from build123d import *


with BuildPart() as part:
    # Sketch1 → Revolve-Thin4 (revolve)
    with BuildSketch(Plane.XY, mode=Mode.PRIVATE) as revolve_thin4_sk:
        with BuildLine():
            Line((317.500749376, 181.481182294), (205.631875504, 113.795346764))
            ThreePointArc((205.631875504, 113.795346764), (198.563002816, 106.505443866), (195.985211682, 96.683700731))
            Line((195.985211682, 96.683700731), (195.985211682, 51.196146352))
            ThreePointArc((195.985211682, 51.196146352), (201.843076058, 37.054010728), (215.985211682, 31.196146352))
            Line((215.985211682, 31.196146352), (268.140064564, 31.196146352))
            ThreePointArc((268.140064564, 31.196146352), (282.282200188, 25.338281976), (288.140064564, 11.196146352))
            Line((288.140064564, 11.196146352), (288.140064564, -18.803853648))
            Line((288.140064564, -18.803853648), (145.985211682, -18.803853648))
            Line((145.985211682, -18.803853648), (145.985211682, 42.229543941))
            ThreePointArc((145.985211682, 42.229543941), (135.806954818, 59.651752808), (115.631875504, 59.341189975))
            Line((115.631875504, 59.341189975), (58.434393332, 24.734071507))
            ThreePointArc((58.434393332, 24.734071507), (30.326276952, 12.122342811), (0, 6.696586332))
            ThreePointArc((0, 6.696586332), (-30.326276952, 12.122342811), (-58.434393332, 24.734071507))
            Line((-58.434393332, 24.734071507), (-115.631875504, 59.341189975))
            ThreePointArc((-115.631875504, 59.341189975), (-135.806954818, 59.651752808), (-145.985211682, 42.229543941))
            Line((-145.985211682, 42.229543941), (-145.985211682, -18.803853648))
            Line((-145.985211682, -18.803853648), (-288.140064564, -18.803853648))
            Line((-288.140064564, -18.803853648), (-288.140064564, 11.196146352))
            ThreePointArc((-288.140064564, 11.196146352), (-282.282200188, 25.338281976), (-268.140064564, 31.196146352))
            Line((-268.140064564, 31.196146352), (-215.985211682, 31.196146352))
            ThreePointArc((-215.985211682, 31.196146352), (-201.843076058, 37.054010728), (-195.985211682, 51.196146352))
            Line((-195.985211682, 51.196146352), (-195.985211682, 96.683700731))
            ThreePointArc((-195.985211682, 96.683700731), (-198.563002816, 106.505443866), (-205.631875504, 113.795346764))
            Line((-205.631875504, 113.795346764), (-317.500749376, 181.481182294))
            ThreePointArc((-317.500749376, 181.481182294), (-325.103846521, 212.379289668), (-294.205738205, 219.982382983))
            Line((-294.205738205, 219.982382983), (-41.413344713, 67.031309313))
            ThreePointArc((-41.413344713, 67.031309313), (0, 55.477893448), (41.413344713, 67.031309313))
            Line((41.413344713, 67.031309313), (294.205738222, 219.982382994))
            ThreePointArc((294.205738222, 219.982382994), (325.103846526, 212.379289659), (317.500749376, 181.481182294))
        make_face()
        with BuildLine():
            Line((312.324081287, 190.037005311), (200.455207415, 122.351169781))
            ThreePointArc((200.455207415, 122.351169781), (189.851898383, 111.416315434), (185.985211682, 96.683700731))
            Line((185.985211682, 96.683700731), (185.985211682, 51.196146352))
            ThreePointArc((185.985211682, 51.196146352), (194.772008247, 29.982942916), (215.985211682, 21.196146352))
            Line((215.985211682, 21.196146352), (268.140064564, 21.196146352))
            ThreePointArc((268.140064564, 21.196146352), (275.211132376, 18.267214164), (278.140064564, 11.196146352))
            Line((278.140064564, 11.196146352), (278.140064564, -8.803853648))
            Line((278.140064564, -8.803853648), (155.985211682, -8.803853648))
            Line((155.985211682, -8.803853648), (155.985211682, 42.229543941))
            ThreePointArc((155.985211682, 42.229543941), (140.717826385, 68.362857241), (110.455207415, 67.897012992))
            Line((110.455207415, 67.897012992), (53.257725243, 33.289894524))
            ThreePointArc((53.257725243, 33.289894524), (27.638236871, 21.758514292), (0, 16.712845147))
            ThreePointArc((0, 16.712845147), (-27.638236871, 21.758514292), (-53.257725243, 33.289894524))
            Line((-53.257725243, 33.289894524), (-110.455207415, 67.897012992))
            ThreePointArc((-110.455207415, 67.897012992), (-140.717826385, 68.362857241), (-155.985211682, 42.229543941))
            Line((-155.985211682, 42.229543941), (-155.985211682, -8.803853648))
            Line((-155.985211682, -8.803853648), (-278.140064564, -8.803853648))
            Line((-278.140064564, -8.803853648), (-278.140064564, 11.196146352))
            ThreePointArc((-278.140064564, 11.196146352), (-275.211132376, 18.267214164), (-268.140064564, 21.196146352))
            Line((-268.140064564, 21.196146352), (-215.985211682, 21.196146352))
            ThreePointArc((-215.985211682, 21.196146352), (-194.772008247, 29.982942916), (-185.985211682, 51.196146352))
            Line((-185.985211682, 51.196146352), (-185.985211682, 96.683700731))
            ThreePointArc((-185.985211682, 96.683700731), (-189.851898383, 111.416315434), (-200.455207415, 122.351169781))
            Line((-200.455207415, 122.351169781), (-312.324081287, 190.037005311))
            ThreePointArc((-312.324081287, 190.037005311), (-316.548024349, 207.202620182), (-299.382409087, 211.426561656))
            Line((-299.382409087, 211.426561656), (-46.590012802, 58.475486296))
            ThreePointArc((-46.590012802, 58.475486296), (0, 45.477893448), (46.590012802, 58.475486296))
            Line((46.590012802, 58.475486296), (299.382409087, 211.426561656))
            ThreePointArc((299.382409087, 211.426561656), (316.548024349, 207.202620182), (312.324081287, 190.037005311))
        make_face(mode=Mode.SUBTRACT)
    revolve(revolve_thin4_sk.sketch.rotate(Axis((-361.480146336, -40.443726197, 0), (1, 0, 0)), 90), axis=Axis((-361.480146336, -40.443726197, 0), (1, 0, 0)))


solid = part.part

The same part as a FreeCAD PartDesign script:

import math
import FreeCAD as App
import Part
import Sketcher

V = App.Vector

doc = App.newDocument("Part")
body = doc.addObject("PartDesign::Body", "Body")

sketch1 = body.newObject("Sketcher::SketchObject", "Sketch")
sketch1.AttachmentSupport = (doc.getObject("XY_Plane"), [""])
sketch1.MapMode = "FlatFace"
sketch1.addGeometry([
    Part.LineSegment(V(205.631876, 113.795347, 0), V(317.500749, 181.481182, 0)),
    Part.ArcOfCircle(Part.Circle(V(305.853246, 200.731784, 0), V(0, 0, 1), 22.5), math.radians(-58.824125), math.radians(121.17589)),
    Part.LineSegment(V(294.205738, 219.982383, 0), V(41.413345, 67.031309, 0)),
    Part.ArcOfCircle(Part.Circle(V(0, 135.477893, 0), V(0, 0, 1), 80), math.radians(-121.175875), math.radians(-58.824125)),
    Part.LineSegment(V(-41.413345, 67.031309, 0), V(-294.205738, 219.982383, 0)),
    Part.ArcOfCircle(Part.Circle(V(-305.853246, 200.731784, 0), V(0, 0, 1), 22.5), math.radians(58.82411), math.radians(238.824125)),
    Part.LineSegment(V(-317.500749, 181.481182, 0), V(-205.631876, 113.795347, 0)),
    Part.ArcOfCircle(Part.Circle(V(-215.985212, 96.683701, 0), V(0, 0, 1), 20), math.radians(0), math.radians(58.824125)),
    Part.LineSegment(V(-195.985212, 96.683701, 0), V(-195.985212, 51.196146, 0)),
    Part.ArcOfCircle(Part.Circle(V(-215.985212, 51.196146, 0), V(0, 0, 1), 20), math.radians(-90), math.radians(0)),
    Part.LineSegment(V(-215.985212, 31.196146, 0), V(-268.140065, 31.196146, 0)),
    Part.ArcOfCircle(Part.Circle(V(-268.140065, 11.196146, 0), V(0, 0, 1), 20), math.radians(90), math.radians(180)),
    Part.LineSegment(V(-288.140065, 11.196146, 0), V(-288.140065, -18.803854, 0)),
    Part.LineSegment(V(-288.140065, -18.803854, 0), V(-145.985212, -18.803854, 0)),
    Part.LineSegment(V(-145.985212, -18.803854, 0), V(-145.985212, 42.229544, 0)),
    Part.ArcOfCircle(Part.Circle(V(-125.985212, 42.229544, 0), V(0, 0, 1), 20), math.radians(58.824125), math.radians(180)),
    Part.LineSegment(V(-115.631876, 59.34119, 0), V(-58.434393, 24.734072, 0)),
    Part.ArcOfCircle(Part.Circle(V(6.897258, 132.712028, 0), V(0, 0, 1), 126.204056), math.radians(-121.175875), math.radians(-93.132869)),
    Part.ArcOfCircle(Part.Circle(V(-6.897258, 132.712028, 0), V(0, 0, 1), 126.204056), math.radians(-86.867131), math.radians(-58.824125)),
    Part.LineSegment(V(58.434393, 24.734072, 0), V(115.631876, 59.34119, 0)),
    Part.ArcOfCircle(Part.Circle(V(125.985212, 42.229544, 0), V(0, 0, 1), 20), math.radians(0), math.radians(121.175875)),
    Part.LineSegment(V(145.985212, 42.229544, 0), V(145.985212, -18.803854, 0)),
    Part.LineSegment(V(145.985212, -18.803854, 0), V(288.140065, -18.803854, 0)),
    Part.LineSegment(V(288.140065, -18.803854, 0), V(288.140065, 11.196146, 0)),
    Part.ArcOfCircle(Part.Circle(V(268.140065, 11.196146, 0), V(0, 0, 1), 20), math.radians(0), math.radians(90)),
    Part.LineSegment(V(268.140065, 31.196146, 0), V(215.985212, 31.196146, 0)),
    Part.ArcOfCircle(Part.Circle(V(215.985212, 51.196146, 0), V(0, 0, 1), 20), math.radians(180), math.radians(270)),
    Part.LineSegment(V(195.985212, 51.196146, 0), V(195.985212, 96.683701, 0)),
    Part.ArcOfCircle(Part.Circle(V(215.985212, 96.683701, 0), V(0, 0, 1), 20), math.radians(121.175875), math.radians(180)),
    Part.LineSegment(V(312.324081, 190.037005, 0), V(200.455207, 122.35117, 0)),
    Part.ArcOfCircle(Part.Circle(V(215.985212, 96.683701, 0), V(0, 0, 1), 30), math.radians(121.175875), math.radians(180)),
    Part.LineSegment(V(185.985212, 96.683701, 0), V(185.985212, 51.196146, 0)),
    Part.ArcOfCircle(Part.Circle(V(215.985212, 51.196146, 0), V(0, 0, 1), 30), math.radians(180), math.radians(270)),
    Part.LineSegment(V(215.985212, 21.196146, 0), V(268.140065, 21.196146, 0)),
    Part.ArcOfCircle(Part.Circle(V(268.140065, 11.196146, 0), V(0, 0, 1), 10), math.radians(0), math.radians(90)),
    Part.LineSegment(V(278.140065, 11.196146, 0), V(278.140065, -8.803854, 0)),
    Part.LineSegment(V(278.140065, -8.803854, 0), V(155.985212, -8.803854, 0)),
    Part.LineSegment(V(155.985212, -8.803854, 0), V(155.985212, 42.229544, 0)),
    Part.ArcOfCircle(Part.Circle(V(125.985212, 42.229544, 0), V(0, 0, 1), 30), math.radians(0), math.radians(121.175875)),
    Part.LineSegment(V(110.455207, 67.897013, 0), V(53.257725, 33.289895, 0)),
    Part.ArcOfCircle(Part.Circle(V(-6.897258, 132.712028, 0), V(0, 0, 1), 116.204056), math.radians(-86.597226), math.radians(-58.824125)),
    Part.ArcOfCircle(Part.Circle(V(6.897258, 132.712028, 0), V(0, 0, 1), 116.204056), math.radians(-121.175875), math.radians(-93.402774)),
    Part.LineSegment(V(-53.257725, 33.289895, 0), V(-110.455207, 67.897013, 0)),
    Part.ArcOfCircle(Part.Circle(V(-125.985212, 42.229544, 0), V(0, 0, 1), 30), math.radians(58.824125), math.radians(180)),
    Part.LineSegment(V(-155.985212, 42.229544, 0), V(-155.985212, -8.803854, 0)),
    Part.LineSegment(V(-155.985212, -8.803854, 0), V(-278.140065, -8.803854, 0)),
    Part.LineSegment(V(-278.140065, -8.803854, 0), V(-278.140065, 11.196146, 0)),
    Part.ArcOfCircle(Part.Circle(V(-268.140065, 11.196146, 0), V(0, 0, 1), 10), math.radians(90), math.radians(180)),
    Part.LineSegment(V(-268.140065, 21.196146, 0), V(-215.985212, 21.196146, 0)),
    Part.ArcOfCircle(Part.Circle(V(-215.985212, 51.196146, 0), V(0, 0, 1), 30), math.radians(-90), math.radians(0)),
    Part.LineSegment(V(-185.985212, 51.196146, 0), V(-185.985212, 96.683701, 0)),
    Part.ArcOfCircle(Part.Circle(V(-215.985212, 96.683701, 0), V(0, 0, 1), 30), math.radians(0), math.radians(58.824125)),
    Part.LineSegment(V(-200.455207, 122.35117, 0), V(-312.324081, 190.037005, 0)),
    Part.ArcOfCircle(Part.Circle(V(-305.853246, 200.731784, 0), V(0, 0, 1), 12.5), math.radians(58.824114), math.radians(238.824125)),
    Part.LineSegment(V(-299.382409, 211.426562, 0), V(-46.590013, 58.475486, 0)),
    Part.ArcOfCircle(Part.Circle(V(0, 135.477893, 0), V(0, 0, 1), 90), math.radians(-121.175875), math.radians(-58.824125)),
    Part.LineSegment(V(46.590013, 58.475486, 0), V(299.382409, 211.426562, 0)),
    Part.ArcOfCircle(Part.Circle(V(305.853246, 200.731784, 0), V(0, 0, 1), 12.5), math.radians(-58.824125), math.radians(121.175886)),
], False)
sketch1.addGeometry(Part.LineSegment(V(-317.500749, -40.443726, 0), V(317.500749, -40.443726, 0)), True)
sketch1.addConstraint([
    Sketcher.Constraint("Tangent", 0, 2, 1, 1),
    Sketcher.Constraint("Tangent", 1, 2, 2, 1),
    Sketcher.Constraint("Tangent", 2, 2, 3, 2),
    Sketcher.Constraint("Tangent", 3, 1, 4, 1),
    Sketcher.Constraint("Tangent", 4, 2, 5, 1),
    Sketcher.Constraint("Tangent", 5, 2, 6, 1),
    Sketcher.Constraint("Tangent", 6, 2, 7, 2),
    Sketcher.Constraint("Tangent", 7, 1, 8, 1),
    Sketcher.Constraint("Tangent", 8, 2, 9, 2),
    Sketcher.Constraint("Tangent", 9, 1, 10, 1),
    Sketcher.Constraint("Tangent", 10, 2, 11, 1),
    Sketcher.Constraint("Tangent", 11, 2, 12, 1),
    Sketcher.Constraint("Coincident", 12, 2, 13, 1),
    Sketcher.Constraint("Coincident", 13, 2, 14, 1),
    Sketcher.Constraint("Tangent", 14, 2, 15, 2),
    Sketcher.Constraint("Tangent", 15, 1, 16, 1),
    Sketcher.Constraint("Tangent", 16, 2, 17, 1),
    Sketcher.Constraint("Coincident", 17, 2, 18, 1),
    Sketcher.Constraint("Tangent", 18, 2, 19, 1),
    Sketcher.Constraint("Tangent", 19, 2, 20, 2),
    Sketcher.Constraint("Tangent", 20, 1, 21, 1),
    Sketcher.Constraint("Coincident", 21, 2, 22, 1),
    Sketcher.Constraint("Coincident", 22, 2, 23, 1),
    Sketcher.Constraint("Tangent", 23, 2, 24, 1),
    Sketcher.Constraint("Tangent", 24, 2, 25, 1),
    Sketcher.Constraint("Tangent", 25, 2, 26, 2),
    Sketcher.Constraint("Tangent", 26, 1, 27, 1),
    Sketcher.Constraint("Tangent", 27, 2, 28, 2),
    Sketcher.Constraint("Tangent", 28, 1, 0, 1),
    Sketcher.Constraint("Tangent", 29, 2, 30, 1),
    Sketcher.Constraint("Tangent", 30, 2, 31, 1),
    Sketcher.Constraint("Tangent", 31, 2, 32, 1),
    Sketcher.Constraint("Tangent", 32, 2, 33, 1),
    Sketcher.Constraint("Tangent", 33, 2, 34, 2),
    Sketcher.Constraint("Tangent", 34, 1, 35, 1),
    Sketcher.Constraint("Coincident", 35, 2, 36, 1),
    Sketcher.Constraint("Coincident", 36, 2, 37, 1),
    Sketcher.Constraint("Tangent", 37, 2, 38, 1),
    Sketcher.Constraint("Tangent", 38, 2, 39, 1),
    Sketcher.Constraint("Tangent", 39, 2, 40, 2),
    Sketcher.Constraint("Coincident", 40, 1, 41, 2),
    Sketcher.Constraint("Tangent", 41, 1, 42, 1),
    Sketcher.Constraint("Tangent", 42, 2, 43, 1),
    Sketcher.Constraint("Tangent", 43, 2, 44, 1),
    Sketcher.Constraint("Coincident", 44, 2, 45, 1),
    Sketcher.Constraint("Coincident", 45, 2, 46, 1),
    Sketcher.Constraint("Tangent", 46, 2, 47, 2),
    Sketcher.Constraint("Tangent", 47, 1, 48, 1),
    Sketcher.Constraint("Tangent", 48, 2, 49, 1),
    Sketcher.Constraint("Tangent", 49, 2, 50, 1),
    Sketcher.Constraint("Tangent", 50, 2, 51, 1),
    Sketcher.Constraint("Tangent", 51, 2, 52, 1),
    Sketcher.Constraint("Tangent", 52, 2, 53, 2),
    Sketcher.Constraint("Tangent", 53, 1, 54, 1),
    Sketcher.Constraint("Tangent", 54, 2, 55, 1),
    Sketcher.Constraint("Tangent", 55, 2, 56, 1),
    Sketcher.Constraint("Tangent", 56, 2, 57, 2),
    Sketcher.Constraint("Tangent", 57, 1, 29, 1),
    Sketcher.Constraint("Vertical", 8),
    Sketcher.Constraint("Horizontal", 10),
    Sketcher.Constraint("Vertical", 12),
    Sketcher.Constraint("Horizontal", 13),
    Sketcher.Constraint("Vertical", 14),
    Sketcher.Constraint("Vertical", 21),
    Sketcher.Constraint("Horizontal", 22),
    Sketcher.Constraint("Vertical", 23),
    Sketcher.Constraint("Horizontal", 25),
    Sketcher.Constraint("Vertical", 27),
    Sketcher.Constraint("Vertical", 31),
    Sketcher.Constraint("Horizontal", 33),
    Sketcher.Constraint("Vertical", 35),
    Sketcher.Constraint("Horizontal", 36),
    Sketcher.Constraint("Vertical", 37),
    Sketcher.Constraint("Vertical", 44),
    Sketcher.Constraint("Horizontal", 45),
    Sketcher.Constraint("Vertical", 46),
    Sketcher.Constraint("Horizontal", 48),
    Sketcher.Constraint("Vertical", 50),
    Sketcher.Constraint("Horizontal", 58),
    Sketcher.Constraint("Coincident", 30, 3, 28, 3),
    Sketcher.Constraint("Coincident", 32, 3, 26, 3),
    Sketcher.Constraint("Coincident", 34, 3, 24, 3),
    Sketcher.Constraint("Coincident", 38, 3, 20, 3),
    Sketcher.Constraint("Coincident", 40, 3, 18, 3),
    Sketcher.Constraint("Coincident", 41, 3, 17, 3),
    Sketcher.Constraint("Coincident", 43, 3, 15, 3),
    Sketcher.Constraint("Coincident", 47, 3, 11, 3),
    Sketcher.Constraint("Coincident", 49, 3, 9, 3),
    Sketcher.Constraint("Coincident", 51, 3, 7, 3),
    Sketcher.Constraint("Coincident", 53, 3, 5, 3),
    Sketcher.Constraint("Coincident", 55, 3, 3, 3),
    Sketcher.Constraint("Coincident", 57, 3, 1, 3),
    Sketcher.Constraint("Equal", 1, 5),
    Sketcher.Constraint("Equal", 7, 9),
    Sketcher.Constraint("Equal", 9, 11),
    Sketcher.Constraint("Equal", 11, 15),
    Sketcher.Constraint("Equal", 17, 18),
    Sketcher.Constraint("Equal", 15, 20),
    Sketcher.Constraint("Equal", 20, 24),
    Sketcher.Constraint("Equal", 24, 26),
    Sketcher.Constraint("Equal", 26, 28),
    Sketcher.Constraint("Equal", 32, 38),
    Sketcher.Constraint("Equal", 40, 41),
    Sketcher.Constraint("Equal", 38, 43),
    Sketcher.Constraint("Equal", 34, 47),
    Sketcher.Constraint("Equal", 53, 57),
    Sketcher.Constraint("Symmetric", 1, 3, 5, 3, -2),
    Sketcher.Constraint("Symmetric", 17, 3, 18, 3, -2),
    Sketcher.Constraint("Symmetric", 15, 3, 20, 3, -2),
    Sketcher.Constraint("Symmetric", 11, 3, 24, 3, -2),
    Sketcher.Constraint("Symmetric", 7, 3, 28, 3, -2),
    Sketcher.Constraint("PointOnObject", 3, 3, -2),
    Sketcher.Constraint("Parallel", 0, 2),
    Sketcher.Constraint("Parallel", 6, 16),
    Sketcher.Constraint("Parallel", 19, 29),
    Sketcher.Constraint("Parallel", 29, 39),
    Sketcher.Constraint("Parallel", 52, 54),
    Sketcher.Constraint("Horizontal", 13, 2, 21, 2),
    Sketcher.Constraint("Horizontal", 36, 2, 44, 2),
    Sketcher.Constraint("Vertical", 5, 2, 58, 1),
    Sketcher.Constraint("Vertical", 0, 2, 58, 2),
    Sketcher.Constraint("Radius", 3, 80.0),
    Sketcher.Constraint("Radius", 7, 20.0),
    Sketcher.Constraint("Radius", 30, 30.0),
    Sketcher.Constraint("Radius", 1, 22.5),
    Sketcher.Constraint("DistanceY", 12, 2, 12, 1, 30.0),
    Sketcher.Constraint("DistanceY", 35, 2, 35, 1, 20.0),
    Sketcher.Constraint("DistanceX", 58, 1, 58, 2, 635.001499),
    Sketcher.Constraint("Radius", 17, 126.204056),
    Sketcher.Constraint("DistanceY", -1, 1, 7, 3, 96.683701),
    Sketcher.Constraint("Distance", 0, 130.751739),
    Sketcher.Constraint("Distance", 16, 66.85211),
    Sketcher.Constraint("DistanceX", 10, 2, 10, 1, 52.154853),
    Sketcher.Constraint("DistanceX", 13, 1, 13, 2, 142.154853),
    Sketcher.Constraint("DistanceY", 8, 2, 8, 1, 45.487554),
    Sketcher.Constraint("DistanceY", 14, 1, 14, 2, 61.033398),
    Sketcher.Constraint("DistanceX", 7, 3, -1, 1, 215.985212),
    Sketcher.Constraint("DistanceY", 58, 1, -1, 1, 40.443726),
])
revolution = body.newObject("PartDesign::Revolution", "Revolution")
revolution.Profile = sketch1
revolution.ReferenceAxis = (sketch1, ["Axis0"])
revolution.Angle = 360

doc.recompute()
